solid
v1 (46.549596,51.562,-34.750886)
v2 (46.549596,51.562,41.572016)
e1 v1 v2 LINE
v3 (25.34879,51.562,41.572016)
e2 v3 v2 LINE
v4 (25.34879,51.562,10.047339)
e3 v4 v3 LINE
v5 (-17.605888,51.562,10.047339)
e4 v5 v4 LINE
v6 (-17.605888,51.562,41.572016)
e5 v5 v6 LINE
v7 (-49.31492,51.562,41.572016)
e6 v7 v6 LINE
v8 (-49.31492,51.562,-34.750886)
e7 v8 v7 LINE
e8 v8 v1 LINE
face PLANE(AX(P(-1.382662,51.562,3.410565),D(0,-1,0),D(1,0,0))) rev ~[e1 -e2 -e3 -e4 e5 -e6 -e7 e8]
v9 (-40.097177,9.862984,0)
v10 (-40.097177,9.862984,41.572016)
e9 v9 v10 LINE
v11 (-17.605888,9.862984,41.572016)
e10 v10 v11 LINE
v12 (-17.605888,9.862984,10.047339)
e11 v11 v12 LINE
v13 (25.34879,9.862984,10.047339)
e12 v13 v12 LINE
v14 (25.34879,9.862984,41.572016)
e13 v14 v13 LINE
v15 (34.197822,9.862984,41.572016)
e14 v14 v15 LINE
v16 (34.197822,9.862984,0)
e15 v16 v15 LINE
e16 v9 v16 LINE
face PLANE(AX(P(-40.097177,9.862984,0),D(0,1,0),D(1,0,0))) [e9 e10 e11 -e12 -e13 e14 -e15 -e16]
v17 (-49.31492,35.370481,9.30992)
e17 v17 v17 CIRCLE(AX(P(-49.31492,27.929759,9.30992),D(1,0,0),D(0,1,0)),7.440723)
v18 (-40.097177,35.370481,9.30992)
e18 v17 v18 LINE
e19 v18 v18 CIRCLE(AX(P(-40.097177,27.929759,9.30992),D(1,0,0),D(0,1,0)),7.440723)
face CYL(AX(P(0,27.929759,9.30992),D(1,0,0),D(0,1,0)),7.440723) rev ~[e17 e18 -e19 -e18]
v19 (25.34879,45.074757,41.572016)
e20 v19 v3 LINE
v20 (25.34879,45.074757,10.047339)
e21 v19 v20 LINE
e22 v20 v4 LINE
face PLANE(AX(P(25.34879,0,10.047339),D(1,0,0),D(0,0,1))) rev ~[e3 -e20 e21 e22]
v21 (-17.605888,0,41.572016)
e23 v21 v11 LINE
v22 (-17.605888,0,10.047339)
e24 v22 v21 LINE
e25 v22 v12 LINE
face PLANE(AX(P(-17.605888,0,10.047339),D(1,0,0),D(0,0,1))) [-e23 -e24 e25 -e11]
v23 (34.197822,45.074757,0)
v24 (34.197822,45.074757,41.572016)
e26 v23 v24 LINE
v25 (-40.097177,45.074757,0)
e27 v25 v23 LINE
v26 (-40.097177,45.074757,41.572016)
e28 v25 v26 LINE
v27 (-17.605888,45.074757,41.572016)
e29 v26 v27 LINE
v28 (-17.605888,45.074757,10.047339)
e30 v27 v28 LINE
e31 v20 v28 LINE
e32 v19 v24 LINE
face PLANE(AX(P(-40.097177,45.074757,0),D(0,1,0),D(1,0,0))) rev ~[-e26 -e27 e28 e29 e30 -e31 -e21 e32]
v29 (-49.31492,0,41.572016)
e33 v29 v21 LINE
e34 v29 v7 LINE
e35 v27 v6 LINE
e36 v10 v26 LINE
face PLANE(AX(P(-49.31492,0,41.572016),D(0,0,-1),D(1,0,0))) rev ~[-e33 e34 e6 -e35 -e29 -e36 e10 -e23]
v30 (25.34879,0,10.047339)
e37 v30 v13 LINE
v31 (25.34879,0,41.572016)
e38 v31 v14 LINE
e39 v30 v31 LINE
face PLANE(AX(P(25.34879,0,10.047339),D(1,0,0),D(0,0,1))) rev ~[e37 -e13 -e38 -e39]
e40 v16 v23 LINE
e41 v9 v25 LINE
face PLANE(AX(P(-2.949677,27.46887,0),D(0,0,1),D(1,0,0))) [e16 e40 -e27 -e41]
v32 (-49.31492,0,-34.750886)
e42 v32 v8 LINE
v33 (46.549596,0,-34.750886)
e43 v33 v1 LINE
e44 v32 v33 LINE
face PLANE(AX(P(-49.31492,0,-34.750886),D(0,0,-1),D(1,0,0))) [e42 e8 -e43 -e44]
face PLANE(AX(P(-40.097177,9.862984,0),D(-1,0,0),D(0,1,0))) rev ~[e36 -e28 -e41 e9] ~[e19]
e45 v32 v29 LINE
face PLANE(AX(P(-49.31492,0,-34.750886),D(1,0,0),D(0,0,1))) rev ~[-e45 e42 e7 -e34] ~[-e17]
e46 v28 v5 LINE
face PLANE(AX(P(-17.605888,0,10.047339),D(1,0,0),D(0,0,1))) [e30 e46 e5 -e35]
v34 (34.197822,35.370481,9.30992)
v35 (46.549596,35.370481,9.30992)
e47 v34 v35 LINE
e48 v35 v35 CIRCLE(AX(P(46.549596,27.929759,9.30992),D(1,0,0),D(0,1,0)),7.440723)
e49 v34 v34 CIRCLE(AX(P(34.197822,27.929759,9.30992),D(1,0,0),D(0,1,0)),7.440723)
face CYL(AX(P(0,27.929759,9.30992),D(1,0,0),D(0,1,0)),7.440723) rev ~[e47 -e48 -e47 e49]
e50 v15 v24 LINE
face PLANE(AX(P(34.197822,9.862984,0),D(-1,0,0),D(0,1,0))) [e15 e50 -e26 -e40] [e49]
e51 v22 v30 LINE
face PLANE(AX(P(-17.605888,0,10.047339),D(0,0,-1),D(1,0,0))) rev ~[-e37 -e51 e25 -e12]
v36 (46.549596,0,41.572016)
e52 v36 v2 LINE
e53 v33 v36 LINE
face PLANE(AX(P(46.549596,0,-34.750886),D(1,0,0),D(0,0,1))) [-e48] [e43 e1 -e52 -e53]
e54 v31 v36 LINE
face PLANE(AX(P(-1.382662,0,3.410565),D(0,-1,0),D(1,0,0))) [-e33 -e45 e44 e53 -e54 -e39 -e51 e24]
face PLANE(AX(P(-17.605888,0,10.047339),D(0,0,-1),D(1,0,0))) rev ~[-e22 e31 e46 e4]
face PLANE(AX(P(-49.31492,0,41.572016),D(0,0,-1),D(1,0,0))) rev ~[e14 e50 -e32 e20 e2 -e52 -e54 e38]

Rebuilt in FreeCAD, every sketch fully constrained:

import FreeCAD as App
import Part
import Sketcher

V = App.Vector
Q = App.Units.Quantity


def add_polygon(sketch, points):
    """Adds a closed chain of lines whose ends are joined by coincident constraints."""
    first, n = sketch.GeometryCount, len(points)
    for a, b in zip(points, points[1:] + points[:1]):
        sketch.addGeometry(Part.LineSegment(App.Vector(*a, 0), App.Vector(*b, 0)), False)
    for i in range(n):
        sketch.addConstraint(Sketcher.Constraint("Coincident", first + i, 2, first + (i + 1) % n, 1))

doc = App.newDocument("Part")
body = doc.addObject("PartDesign::Body", "Body")

# Sketch on XZ plane
sketch1 = doc.addObject("Sketcher::SketchObject", "Sketch")
body.addObject(sketch1)
sketch1.AttachmentSupport = (doc.XZ_Plane, [""])
sketch1.MapMode = "FlatFace"
add_polygon(sketch1, [(-49.31492, 41.572016), (-49.31492, -34.750886), (46.549596, -34.750886), (46.549596, 41.572016)])  # lines 0-3
sketch1.addConstraint([
    Sketcher.Constraint("Vertical", 0),
    Sketcher.Constraint("Horizontal", 1),
    Sketcher.Constraint("Vertical", 2),
    Sketcher.Constraint("Horizontal", 3),
    Sketcher.Constraint("DistanceY", 0, 2, 0, 1, 76.322902),
    Sketcher.Constraint("DistanceX", 1, 1, 1, 2, 95.864516),
    Sketcher.Constraint("DistanceX", 0, 2, -1, 1, 49.31492),
    Sketcher.Constraint("DistanceY", 0, 2, -1, 1, 34.750886),
])
pad1 = doc.addObject("PartDesign::Pad", "Pad")
body.addObject(pad1)
pad1.Profile = sketch1
pad1.Length = Q("2.03 in")
pad1.Reversed = True

# Sketch on XY plane
sketch2 = doc.addObject("Sketcher::SketchObject", "Sketch001")
body.addObject(sketch2)
sketch2.AttachmentSupport = (doc.XY_Plane, [""])
sketch2.MapMode = "FlatFace"
add_polygon(sketch2, [(-40.097177, 45.074757), (-40.097177, 9.862984), (34.197822, 9.862984), (34.197822, 45.074757)])  # lines 0-3
sketch2.addConstraint([
    Sketcher.Constraint("Vertical", 0),
    Sketcher.Constraint("Horizontal", 1),
    Sketcher.Constraint("Vertical", 2),
    Sketcher.Constraint("Horizontal", 3),
    Sketcher.Constraint("DistanceX", 1, 1, 1, 2, Q("2.925 in")),
    Sketcher.Constraint("DistanceY", 0, 2, 0, 1, 35.211774),
    Sketcher.Constraint("DistanceX", 0, 2, -1, 1, 40.097177),
    Sketcher.Constraint("DistanceY", -1, 1, 0, 2, 9.862984),
])
pocket1 = doc.addObject("PartDesign::Pocket", "Pocket")
body.addObject(pocket1)
pocket1.Profile = sketch2
pocket1.Length = Q("2.88 in")
pocket1.Reversed = True

# Sketch on YZ plane
sketch3 = doc.addObject("Sketcher::SketchObject", "Sketch002")
body.addObject(sketch3)
sketch3.AttachmentSupport = (doc.YZ_Plane, [""])
sketch3.MapMode = "FlatFace"
sketch3.addGeometry(Part.Circle(V(27.929759, 9.30992, 0), V(0, 0, 1), 7.440723), False)
sketch3.addConstraint([
    Sketcher.Constraint("Diameter", 0, 14.881445),
    Sketcher.Constraint("DistanceX", -1, 1, 0, 3, 27.929759),
    Sketcher.Constraint("DistanceY", -1, 1, 0, 3, 9.30992),
])
pocket2 = doc.addObject("PartDesign::Pocket", "Pocket001")
body.addObject(pocket2)
pocket2.Profile = sketch3
pocket2.Length = Q("4.2 in")
pocket2.Midplane = True

# Sketch on XZ plane
sketch4 = doc.addObject("Sketcher::SketchObject", "Sketch003")
body.addObject(sketch4)
sketch4.AttachmentSupport = (doc.XZ_Plane, [""])
sketch4.MapMode = "FlatFace"
add_polygon(sketch4, [(-17.605888, 41.572016), (-17.605888, 10.047339), (25.34879, 10.047339), (25.34879, 41.572016)])  # lines 0-3
sketch4.addConstraint([
    Sketcher.Constraint("Vertical", 0),
    Sketcher.Constraint("Horizontal", 1),
    Sketcher.Constraint("Vertical", 2),
    Sketcher.Constraint("Horizontal", 3),
    Sketcher.Constraint("DistanceX", 1, 1, 1, 2, 42.954678),
    Sketcher.Constraint("DistanceY", 0, 2, 0, 1, 31.524677),
    Sketcher.Constraint("DistanceY", -1, 1, 0, 2, 10.047339),
    Sketcher.Constraint("DistanceX", -1, 1, 1, 2, 25.34879),
])
pocket3 = doc.addObject("PartDesign::Pocket", "Pocket002")
body.addObject(pocket3)
pocket3.Profile = sketch4
pocket3.Length = Q("2.28 in")

doc.recompute()
